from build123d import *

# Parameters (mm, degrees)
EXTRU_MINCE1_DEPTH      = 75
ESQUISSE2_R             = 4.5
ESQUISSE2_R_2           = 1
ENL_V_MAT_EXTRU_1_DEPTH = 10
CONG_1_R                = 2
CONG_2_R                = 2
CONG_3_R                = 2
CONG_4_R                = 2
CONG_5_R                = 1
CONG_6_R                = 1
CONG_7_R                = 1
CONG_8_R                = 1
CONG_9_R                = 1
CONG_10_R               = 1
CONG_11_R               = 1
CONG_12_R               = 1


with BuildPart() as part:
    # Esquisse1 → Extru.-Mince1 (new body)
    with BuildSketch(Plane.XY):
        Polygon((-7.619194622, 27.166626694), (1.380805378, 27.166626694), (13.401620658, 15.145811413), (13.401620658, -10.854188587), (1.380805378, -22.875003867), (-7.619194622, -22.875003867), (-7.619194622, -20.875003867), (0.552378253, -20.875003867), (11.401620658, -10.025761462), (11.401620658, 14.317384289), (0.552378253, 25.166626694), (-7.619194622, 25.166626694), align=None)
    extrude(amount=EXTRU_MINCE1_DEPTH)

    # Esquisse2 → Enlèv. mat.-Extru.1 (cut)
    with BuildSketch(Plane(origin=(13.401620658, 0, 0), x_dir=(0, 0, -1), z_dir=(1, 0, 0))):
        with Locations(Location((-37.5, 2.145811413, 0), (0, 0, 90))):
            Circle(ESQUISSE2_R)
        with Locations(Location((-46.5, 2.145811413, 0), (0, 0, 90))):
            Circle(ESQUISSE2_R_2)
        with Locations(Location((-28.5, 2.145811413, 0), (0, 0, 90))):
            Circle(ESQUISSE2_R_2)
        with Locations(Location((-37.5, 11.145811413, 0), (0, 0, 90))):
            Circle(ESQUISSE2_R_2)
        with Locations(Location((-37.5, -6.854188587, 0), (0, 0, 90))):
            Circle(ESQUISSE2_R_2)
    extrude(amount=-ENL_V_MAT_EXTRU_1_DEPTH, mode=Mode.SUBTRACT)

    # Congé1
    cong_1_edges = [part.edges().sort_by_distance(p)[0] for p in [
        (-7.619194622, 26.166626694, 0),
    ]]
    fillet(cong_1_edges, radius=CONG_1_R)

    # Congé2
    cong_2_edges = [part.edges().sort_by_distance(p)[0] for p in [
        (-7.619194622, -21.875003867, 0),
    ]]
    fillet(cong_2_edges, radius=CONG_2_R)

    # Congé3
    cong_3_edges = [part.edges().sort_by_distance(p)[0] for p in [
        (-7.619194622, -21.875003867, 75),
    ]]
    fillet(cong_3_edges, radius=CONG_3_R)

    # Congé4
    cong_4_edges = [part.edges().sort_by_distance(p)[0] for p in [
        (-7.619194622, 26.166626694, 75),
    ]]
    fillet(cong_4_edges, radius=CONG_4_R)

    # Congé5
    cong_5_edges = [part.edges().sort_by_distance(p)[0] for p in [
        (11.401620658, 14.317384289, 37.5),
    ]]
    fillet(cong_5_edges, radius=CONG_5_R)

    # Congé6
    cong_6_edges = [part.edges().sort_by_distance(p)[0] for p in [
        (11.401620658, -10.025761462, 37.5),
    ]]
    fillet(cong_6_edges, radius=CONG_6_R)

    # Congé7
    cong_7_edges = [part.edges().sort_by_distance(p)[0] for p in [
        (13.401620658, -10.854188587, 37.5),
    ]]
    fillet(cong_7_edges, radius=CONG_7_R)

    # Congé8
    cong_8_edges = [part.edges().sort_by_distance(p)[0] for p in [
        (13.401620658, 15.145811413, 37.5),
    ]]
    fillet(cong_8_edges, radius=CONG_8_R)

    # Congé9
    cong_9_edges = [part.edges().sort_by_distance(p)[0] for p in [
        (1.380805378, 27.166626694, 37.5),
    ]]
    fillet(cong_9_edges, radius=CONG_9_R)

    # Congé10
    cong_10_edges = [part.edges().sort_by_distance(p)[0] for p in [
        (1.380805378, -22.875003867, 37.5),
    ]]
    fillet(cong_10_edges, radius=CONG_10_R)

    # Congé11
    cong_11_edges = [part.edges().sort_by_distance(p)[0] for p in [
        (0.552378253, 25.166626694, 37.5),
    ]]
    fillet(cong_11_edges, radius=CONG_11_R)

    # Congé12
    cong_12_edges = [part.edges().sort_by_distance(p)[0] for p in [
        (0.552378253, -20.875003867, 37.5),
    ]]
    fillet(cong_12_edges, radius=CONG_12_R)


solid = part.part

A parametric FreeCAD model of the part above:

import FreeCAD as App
import Part
import Sketcher


def edges_at(feature, points):
    """Names of the edges that pass closest to the given points."""
    edges = feature.Shape.Edges
    near = lambda p: min(range(len(edges)), key=lambda i: edges[i].distToShape(Part.Vertex(*p))[0])
    return sorted({f"Edge{near(p) + 1}" for p in points})


def add_polygon(sketch, points):
    """Adds a closed chain of lines whose ends are joined by coincident constraints."""
    first, n = sketch.GeometryCount, len(points)
    for a, b in zip(points, points[1:] + points[:1]):
        sketch.addGeometry(Part.LineSegment(App.Vector(*a, 0), App.Vector(*b, 0)), False)
    for i in range(n):
        sketch.addConstraint(Sketcher.Constraint("Coincident", first + i, 2, first + (i + 1) % n, 1))

doc = App.newDocument("Part")
params = doc.addObject("Spreadsheet::Sheet", "Params")
for row, (alias, value) in enumerate([
    ("sketch1_width", "9 mm"),
    ("sketch1_height", "2 mm"),
    ("sketch1_height2", "26 mm"),
    ("sketch1_length", "17 mm"),
    ("pad1_length", "75 mm"),
    ("sketch2_diameter", "9 mm"),
    ("sketch2_diameter2", "2 mm"),
    ("pocket1_length", "10 mm"),
    ("fillet_radius", "2 mm"),
    ("fillet2_radius", "2 mm"),
    ("fillet3_radius", "2 mm"),
    ("fillet4_radius", "2 mm"),
    ("fillet5_radius", "1 mm"),
    ("fillet6_radius", "1 mm"),
    ("fillet7_radius", "1 mm"),
    ("fillet8_radius", "1 mm"),
    ("fillet9_radius", "1 mm"),
    ("fillet10_radius", "1 mm"),
    ("fillet11_radius", "1 mm"),
    ("fillet12_radius", "1 mm"),
], start=1):
    params.set(f"A{row}", alias)
    params.set(f"B{row}", "=" + value)
    params.setAlias(f"B{row}", alias)

body = doc.addObject("PartDesign::Body", "Body")

# Sketch on XY plane
sketch1 = doc.addObject("Sketcher::SketchObject", "Sketch")
body.addObject(sketch1)
sketch1.AttachmentSupport = (doc.XY_Plane, [""])
sketch1.MapMode = "FlatFace"
add_polygon(sketch1, [(1.380805, 27.166627), (-7.619195, 27.166627), (-7.619195, 25.166627), (0.552378, 25.166627), (11.401621, 14.317384), (11.401621, -10.025761), (0.552378, -20.875004), (-7.619195, -20.875004), (-7.619195, -22.875004), (1.380805, -22.875004), (13.401621, -10.854189), (13.401621, 15.145811)])  # lines 0-11
sketch1.addConstraint([
    Sketcher.Constraint("Horizontal", 0),
    Sketcher.Constraint("Vertical", 1),
    Sketcher.Constraint("Horizontal", 2),
    Sketcher.Constraint("Vertical", 4),
    Sketcher.Constraint("Horizontal", 6),
    Sketcher.Constraint("Vertical", 7),
    Sketcher.Constraint("Horizontal", 8),
    Sketcher.Constraint("Vertical", 10),
    Sketcher.Constraint("Perpendicular", 3, 5),
    Sketcher.Constraint("Parallel", 5, 9),
    Sketcher.Constraint("Perpendicular", 9, 11),
    Sketcher.Constraint("Vertical", 2, 2, 5, 2),
    Sketcher.Constraint("Vertical", 1, 2, 6, 2),
    Sketcher.Constraint("Vertical", 8, 2, 11, 2),
    Sketcher.Constraint("Equal", 1, 7),
    Sketcher.Constraint("Equal", 3, 5),
    Sketcher.Constraint("DistanceX", 0, 2, 0, 1, 9.0),
    Sketcher.Constraint("DistanceY", 1, 2, 1, 1, 2.0),
    Sketcher.Constraint("DistanceY", 10, 1, 10, 2, 26.0),
    Sketcher.Constraint("Distance", 9, 17.0),
    Sketcher.Constraint("DistanceX", 4, 2, 9, 2, 2.0),
    Sketcher.Constraint("DistanceX", 2, 1, 2, 2, 8.171573),
    Sketcher.Constraint("DistanceX", -1, 1, 2, 2, 0.552378),
    Sketcher.Constraint("DistanceY", 4, 2, -1, 1, 10.025761),
])
sketch1.setExpression("Constraints[28]", "Params.sketch1_width")
sketch1.setExpression("Constraints[29]", "Params.sketch1_height")
sketch1.setExpression("Constraints[30]", "Params.sketch1_height2")
sketch1.setExpression("Constraints[31]", "Params.sketch1_length")
pad1 = doc.addObject("PartDesign::Pad", "Pad")
body.addObject(pad1)
pad1.Profile = sketch1
pad1.setExpression("Length", "Params.pad1_length")

# Sketch on YZ plane
sketch2 = doc.addObject("Sketcher::SketchObject", "Sketch001")
body.addObject(sketch2)
sketch2.AttachmentSupport = (doc.YZ_Plane, [""])
sketch2.MapMode = "FlatFace"
sketch2.AttachmentOffset = App.Placement(App.Vector(0, 0, 13.401621), App.Rotation())
sketch2.addGeometry([
    Part.Circle(App.Vector(2.145811, 37.5, 0), App.Vector(0, 0, 1), 4.5),  # 0
    Part.Circle(App.Vector(2.145811, 46.5, 0), App.Vector(0, 0, 1), 1),  # 1
    Part.Circle(App.Vector(2.145811, 28.5, 0), App.Vector(0, 0, 1), 1),  # 2
    Part.Circle(App.Vector(11.145811, 37.5, 0), App.Vector(0, 0, 1), 1),  # 3
    Part.Circle(App.Vector(-6.854189, 37.5, 0), App.Vector(0, 0, 1), 1),  # 4
], False)
sketch2.addConstraint([
    Sketcher.Constraint("Equal", 1, 2),
    Sketcher.Constraint("Equal", 2, 3),
    Sketcher.Constraint("Equal", 3, 4),
    Sketcher.Constraint("Horizontal", 0, 3, 3, 3),
    Sketcher.Constraint("Horizontal", 3, 3, 4, 3),
    Sketcher.Constraint("Vertical", 0, 3, 1, 3),
    Sketcher.Constraint("Vertical", 1, 3, 2, 3),
    Sketcher.Constraint("Diameter", 0, 9.0),
    Sketcher.Constraint("Diameter", 1, 2.0),
    Sketcher.Constraint("DistanceY", 0, 3, 1, 3, 9.0),
    Sketcher.Constraint("DistanceY", 2, 3, 0, 3, 9.0),
    Sketcher.Constraint("DistanceX", 0, 3, 3, 3, 9.0),
    Sketcher.Constraint("DistanceX", 4, 3, 0, 3, 9.0),
    Sketcher.Constraint("DistanceY", -1, 1, 0, 3, 37.5),
    Sketcher.Constraint("DistanceX", -1, 1, 0, 3, 2.145811),
])
sketch2.setExpression("Constraints[7]", "Params.sketch2_diameter")
sketch2.setExpression("Constraints[8]", "Params.sketch2_diameter2")
pocket1 = doc.addObject("PartDesign::Pocket", "Pocket")
body.addObject(pocket1)
pocket1.Profile = sketch2
pocket1.setExpression("Length", "Params.pocket1_length")
doc.recompute()

fillet = doc.addObject("PartDesign::Fillet", "Fillet")
body.addObject(fillet)
fillet.Base = (pocket1, edges_at(pocket1, [(-7.619, 26.167, 0)]))
fillet.setExpression("Radius", "Params.fillet_radius")
doc.recompute()

fillet2 = doc.addObject("PartDesign::Fillet", "Fillet001")
body.addObject(fillet2)
fillet2.Base = (fillet, edges_at(fillet, [(-7.619, -21.875, 0)]))
fillet2.setExpression("Radius", "Params.fillet2_radius")
doc.recompute()

fillet3 = doc.addObject("PartDesign::Fillet", "Fillet002")
body.addObject(fillet3)
fillet3.Base = (fillet2, edges_at(fillet2, [(-7.619, -21.875, 75)]))
fillet3.setExpression("Radius", "Params.fillet3_radius")
doc.recompute()

fillet4 = doc.addObject("PartDesign::Fillet", "Fillet003")
body.addObject(fillet4)
fillet4.Base = (fillet3, edges_at(fillet3, [(-7.619, 26.167, 75)]))
fillet4.setExpression("Radius", "Params.fillet4_radius")
doc.recompute()

fillet5 = doc.addObject("PartDesign::Fillet", "Fillet004")
body.addObject(fillet5)
fillet5.Base = (fillet4, edges_at(fillet4, [(11.402, 14.317, 37.5)]))
fillet5.setExpression("Radius", "Params.fillet5_radius")
doc.recompute()

fillet6 = doc.addObject("PartDesign::Fillet", "Fillet005")
body.addObject(fillet6)
fillet6.Base = (fillet5, edges_at(fillet5, [(11.402, -10.026, 37.5)]))
fillet6.setExpression("Radius", "Params.fillet6_radius")
doc.recompute()

fillet7 = doc.addObject("PartDesign::Fillet", "Fillet006")
body.addObject(fillet7)
fillet7.Base = (fillet6, edges_at(fillet6, [(13.402, -10.854, 37.5)]))
fillet7.setExpression("Radius", "Params.fillet7_radius")
doc.recompute()

fillet8 = doc.addObject("PartDesign::Fillet", "Fillet007")
body.addObject(fillet8)
fillet8.Base = (fillet7, edges_at(fillet7, [(13.402, 15.146, 37.5)]))
fillet8.setExpression("Radius", "Params.fillet8_radius")
doc.recompute()

fillet9 = doc.addObject("PartDesign::Fillet", "Fillet008")
body.addObject(fillet9)
fillet9.Base = (fillet8, edges_at(fillet8, [(1.381, 27.167, 37.5)]))
fillet9.setExpression("Radius", "Params.fillet9_radius")
doc.recompute()

fillet10 = doc.addObject("PartDesign::Fillet", "Fillet009")
body.addObject(fillet10)
fillet10.Base = (fillet9, edges_at(fillet9, [(1.381, -22.875, 37.5)]))
fillet10.setExpression("Radius", "Params.fillet10_radius")
doc.recompute()

fillet11 = doc.addObject("PartDesign::Fillet", "Fillet010")
body.addObject(fillet11)
fillet11.Base = (fillet10, edges_at(fillet10, [(0.552, 25.167, 37.5)]))
fillet11.setExpression("Radius", "Params.fillet11_radius")
doc.recompute()

fillet12 = doc.addObject("PartDesign::Fillet", "Fillet011")
body.addObject(fillet12)
fillet12.Base = (fillet11, edges_at(fillet11, [(0.552, -20.875, 37.5)]))
fillet12.setExpression("Radius", "Params.fillet12_radius")

doc.recompute()
